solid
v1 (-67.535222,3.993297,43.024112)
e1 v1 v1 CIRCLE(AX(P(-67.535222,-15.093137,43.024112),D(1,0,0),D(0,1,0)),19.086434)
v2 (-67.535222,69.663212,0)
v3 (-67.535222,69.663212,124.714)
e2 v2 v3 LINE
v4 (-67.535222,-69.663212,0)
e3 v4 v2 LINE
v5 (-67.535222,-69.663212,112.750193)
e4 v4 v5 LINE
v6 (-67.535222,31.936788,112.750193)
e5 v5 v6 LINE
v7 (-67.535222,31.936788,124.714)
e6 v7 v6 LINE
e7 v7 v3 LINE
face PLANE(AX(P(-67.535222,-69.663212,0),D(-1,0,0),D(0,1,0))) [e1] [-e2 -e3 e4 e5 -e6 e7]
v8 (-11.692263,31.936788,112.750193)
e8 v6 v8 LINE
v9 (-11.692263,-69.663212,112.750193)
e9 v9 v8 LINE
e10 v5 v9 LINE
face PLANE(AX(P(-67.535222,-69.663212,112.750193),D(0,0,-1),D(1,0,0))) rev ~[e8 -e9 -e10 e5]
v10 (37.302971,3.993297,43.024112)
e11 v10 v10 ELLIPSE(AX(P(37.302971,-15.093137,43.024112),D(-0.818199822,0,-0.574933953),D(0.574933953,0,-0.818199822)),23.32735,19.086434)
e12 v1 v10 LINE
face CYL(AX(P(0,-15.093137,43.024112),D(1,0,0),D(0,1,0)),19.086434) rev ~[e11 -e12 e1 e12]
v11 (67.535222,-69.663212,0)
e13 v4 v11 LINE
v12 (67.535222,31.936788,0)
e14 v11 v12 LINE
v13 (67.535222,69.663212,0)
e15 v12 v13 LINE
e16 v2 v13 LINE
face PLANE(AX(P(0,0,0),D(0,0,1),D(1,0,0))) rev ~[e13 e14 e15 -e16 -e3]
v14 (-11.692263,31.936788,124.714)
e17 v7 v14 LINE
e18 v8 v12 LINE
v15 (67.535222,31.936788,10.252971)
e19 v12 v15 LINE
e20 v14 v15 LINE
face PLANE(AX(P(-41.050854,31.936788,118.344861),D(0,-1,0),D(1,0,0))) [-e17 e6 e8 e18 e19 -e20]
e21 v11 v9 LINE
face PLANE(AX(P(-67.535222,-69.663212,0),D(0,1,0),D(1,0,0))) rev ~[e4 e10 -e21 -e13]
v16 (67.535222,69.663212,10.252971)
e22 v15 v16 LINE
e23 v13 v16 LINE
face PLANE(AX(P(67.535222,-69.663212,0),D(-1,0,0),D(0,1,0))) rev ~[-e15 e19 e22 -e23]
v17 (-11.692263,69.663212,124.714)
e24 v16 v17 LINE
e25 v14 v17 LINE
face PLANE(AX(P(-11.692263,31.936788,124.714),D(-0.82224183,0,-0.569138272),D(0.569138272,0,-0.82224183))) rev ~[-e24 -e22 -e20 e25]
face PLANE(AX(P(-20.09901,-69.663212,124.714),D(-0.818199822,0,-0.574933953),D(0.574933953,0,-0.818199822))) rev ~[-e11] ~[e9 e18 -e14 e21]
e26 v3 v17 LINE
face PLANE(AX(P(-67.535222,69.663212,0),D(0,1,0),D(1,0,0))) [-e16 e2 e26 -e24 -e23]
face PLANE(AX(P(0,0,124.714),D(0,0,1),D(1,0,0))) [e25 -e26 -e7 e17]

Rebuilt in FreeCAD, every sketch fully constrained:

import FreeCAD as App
import Part
import Sketcher

V = App.Vector
Q = App.Units.Quantity

doc = App.newDocument("Part")
params = doc.addObject("Spreadsheet::Sheet", "Params")
for row, (alias, value) in enumerate([
    ("pad1_length", "4.91 in"),
    ("sketch2_height", "4.91 in"),
    ("pocket1_length", "8 in"),
    ("pocket2_length", "4 in"),
    ("pocket3_length", "2 in"),
    ("pocket4_length", "10.88 in"),
], start=1):
    params.set(f"A{row}", alias)
    params.set(f"B{row}", "=" + value)
    params.setAlias(f"B{row}", alias)

body = doc.addObject("PartDesign::Body", "Body")

# Sketch on XY plane
sketch1 = doc.addObject("Sketcher::SketchObject", "Sketch")
body.addObject(sketch1)
sketch1.AttachmentSupport = (doc.XY_Plane, [""])
sketch1.MapMode = "FlatFace"
sketch1.addGeometry(Part.LineSegment(V(-67.535222, 69.663212, 0), V(-67.535222, -69.663212, 0)), False)
sketch1.addGeometry(Part.LineSegment(V(-67.535222, -69.663212, 0), V(67.535222, -69.663212, 0)), False)
sketch1.addGeometry(Part.LineSegment(V(67.535222, -69.663212, 0), V(67.535222, 69.663212, 0)), False)
sketch1.addGeometry(Part.LineSegment(V(67.535222, 69.663212, 0), V(-67.535222, 69.663212, 0)), False)
sketch1.addConstraint(Sketcher.Constraint("Coincident", 0, 2, 1, 1))
sketch1.addConstraint(Sketcher.Constraint("Coincident", 1, 2, 2, 1))
sketch1.addConstraint(Sketcher.Constraint("Coincident", 2, 2, 3, 1))
sketch1.addConstraint(Sketcher.Constraint("Coincident", 3, 2, 0, 1))
sketch1.addConstraint(Sketcher.Constraint("Vertical", 0))
sketch1.addConstraint(Sketcher.Constraint("Horizontal", 1))
sketch1.addConstraint(Sketcher.Constraint("Vertical", 2))
sketch1.addConstraint(Sketcher.Constraint("Horizontal", 3))
sketch1.addConstraint(Sketcher.Constraint("Symmetric", 0, 2, 2, 2, -1, 1))
sketch1.addConstraint(Sketcher.Constraint("DistanceX", 1, 1, 1, 2, Q("135.070444 mm")))
sketch1.addConstraint(Sketcher.Constraint("DistanceY", 0, 2, 0, 1, Q("139.326424 mm")))
pad1 = doc.addObject("PartDesign::Pad", "Pad")
body.addObject(pad1)
pad1.Profile = sketch1
pad1.setExpression("Length", "Params.pad1_length")

# Sketch on XZ plane
sketch2 = doc.addObject("Sketcher::SketchObject", "Sketch001")
body.addObject(sketch2)
sketch2.AttachmentSupport = (doc.XZ_Plane, [""])
sketch2.MapMode = "FlatFace"
sketch2.AttachmentOffset = App.Placement(V(0, 0, 69.663212), App.Rotation())
sketch2.addGeometry(Part.LineSegment(V(67.535222, 124.714, 0), V(-20.09901, 124.714, 0)), False)
sketch2.addGeometry(Part.LineSegment(V(-20.09901, 124.714, 0), V(67.535222, 0, 0)), False)
sketch2.addGeometry(Part.LineSegment(V(67.535222, 0, 0), V(67.535222, 124.714, 0)), False)
sketch2.addConstraint(Sketcher.Constraint("Coincident", 0, 2, 1, 1))
sketch2.addConstraint(Sketcher.Constraint("Coincident", 1, 2, 2, 1))
sketch2.addConstraint(Sketcher.Constraint("Coincident", 2, 2, 0, 1))
sketch2.addConstraint(Sketcher.Constraint("Horizontal", 0))
sketch2.addConstraint(Sketcher.Constraint("Vertical", 2))
sketch2.addConstraint(Sketcher.Constraint("PointOnObject", 1, 2, -1))
sketch2.addConstraint(Sketcher.Constraint("DistanceY", 2, 1, 2, 2, Q("4.91 in")))
sketch2.addConstraint(Sketcher.Constraint("DistanceX", 0, 2, 0, 1, Q("87.634232 mm")))
sketch2.addConstraint(Sketcher.Constraint("DistanceX", 0, 2, -1, 1, Q("20.09901 mm")))
sketch2.setExpression("Constraints[6]", "Params.sketch2_height")
pocket1 = doc.addObject("PartDesign::Pocket", "Pocket")
body.addObject(pocket1)
pocket1.Profile = sketch2
pocket1.setExpression("Length", "Params.pocket1_length")
pocket1.Midplane = True

# Sketch on XZ plane
sketch3 = doc.addObject("Sketcher::SketchObject", "Sketch002")
body.addObject(sketch3)
sketch3.AttachmentSupport = (doc.XZ_Plane, [""])
sketch3.MapMode = "FlatFace"
sketch3.AttachmentOffset = App.Placement(V(0, 0, 69.663212), App.Rotation())
sketch3.addGeometry(Part.LineSegment(V(-67.535222, 112.750193, 0), V(-11.692263, 112.750193, 0)), False)
sketch3.addGeometry(Part.LineSegment(V(-11.692263, 112.750193, 0), V(-20.09901, 124.714, 0)), False)
sketch3.addGeometry(Part.LineSegment(V(-20.09901, 124.714, 0), V(-67.535222, 124.714, 0)), False)
sketch3.addGeometry(Part.LineSegment(V(-67.535222, 124.714, 0), V(-67.535222, 112.750193, 0)), False)
sketch3.addConstraint(Sketcher.Constraint("Coincident", 0, 2, 1, 1))
sketch3.addConstraint(Sketcher.Constraint("Coincident", 1, 2, 2, 1))
sketch3.addConstraint(Sketcher.Constraint("Coincident", 2, 2, 3, 1))
sketch3.addConstraint(Sketcher.Constraint("Coincident", 3, 2, 0, 1))
sketch3.addConstraint(Sketcher.Constraint("Horizontal", 0))
sketch3.addConstraint(Sketcher.Constraint("Horizontal", 2))
sketch3.addConstraint(Sketcher.Constraint("Vertical", 3))
sketch3.addConstraint(Sketcher.Constraint("DistanceY", -1, 1, 1, 2, Q("4.91 in")))
sketch3.addConstraint(Sketcher.Constraint("DistanceX", 0, 1, 0, 2, Q("55.842959 mm")))
sketch3.addConstraint(Sketcher.Constraint("Distance", 1, Q("14.622109 mm")))
sketch3.addConstraint(Sketcher.Constraint("DistanceX", 2, 2, 2, 1, Q("47.436212 mm")))
sketch3.addConstraint(Sketcher.Constraint("DistanceX", 1, 2, -1, 1, Q("20.09901 mm")))
pocket2 = doc.addObject("PartDesign::Pocket", "Pocket001")
body.addObject(pocket2)
pocket2.Profile = sketch3
pocket2.setExpression("Length", "Params.pocket2_length")

# Sketch on XZ plane
sketch4 = doc.addObject("Sketcher::SketchObject", "Sketch003")
body.addObject(sketch4)
sketch4.AttachmentSupport = (doc.XZ_Plane, [""])
sketch4.MapMode = "FlatFace"
sketch4.AttachmentOffset = App.Placement(V(0, 0, -31.936788), App.Rotation())
sketch4.addGeometry(Part.LineSegment(V(67.535222, 124.714, 0), V(-11.692263, 124.714, 0)), False)
sketch4.addGeometry(Part.LineSegment(V(-11.692263, 124.714, 0), V(67.535222, 10.252971, 0)), False)
sketch4.addGeometry(Part.LineSegment(V(67.535222, 10.252971, 0), V(67.535222, 124.714, 0)), False)
sketch4.addConstraint(Sketcher.Constraint("Coincident", 0, 2, 1, 1))
sketch4.addConstraint(Sketcher.Constraint("Coincident", 1, 2, 2, 1))
sketch4.addConstraint(Sketcher.Constraint("Coincident", 2, 2, 0, 1))
sketch4.addConstraint(Sketcher.Constraint("Horizontal", 0))
sketch4.addConstraint(Sketcher.Constraint("Vertical", 2))
sketch4.addConstraint(Sketcher.Constraint("DistanceY", -1, 1, 0, 2, Q("4.91 in")))
sketch4.addConstraint(Sketcher.Constraint("DistanceY", 2, 1, 2, 2, Q("114.461029 mm")))
sketch4.addConstraint(Sketcher.Constraint("Distance", 1, Q("139.20604 mm")))
sketch4.addConstraint(Sketcher.Constraint("DistanceX", 0, 2, -1, 1, Q("11.692263 mm")))
pocket3 = doc.addObject("PartDesign::Pocket", "Pocket002")
body.addObject(pocket3)
pocket3.Profile = sketch4
pocket3.setExpression("Length", "Params.pocket3_length")

# Sketch on YZ plane
sketch5 = doc.addObject("Sketcher::SketchObject", "Sketch004")
body.addObject(sketch5)
sketch5.AttachmentSupport = (doc.YZ_Plane, [""])
sketch5.MapMode = "FlatFace"
sketch5.addGeometry(Part.Circle(V(-15.093137, 43.024112, 0), V(0, 0, 1), 19.086434), False)
sketch5.addConstraint(Sketcher.Constraint("Diameter", 0, Q("38.172868 mm")))
sketch5.addConstraint(Sketcher.Constraint("DistanceX", 0, 3, -1, 1, Q("15.093137 mm")))
sketch5.addConstraint(Sketcher.Constraint("DistanceY", -1, 1, 0, 3, Q("43.024112 mm")))
pocket4 = doc.addObject("PartDesign::Pocket", "Pocket003")
body.addObject(pocket4)
pocket4.Profile = sketch5
pocket4.setExpression("Length", "Params.pocket4_length")
pocket4.Midplane = True

doc.recompute()
